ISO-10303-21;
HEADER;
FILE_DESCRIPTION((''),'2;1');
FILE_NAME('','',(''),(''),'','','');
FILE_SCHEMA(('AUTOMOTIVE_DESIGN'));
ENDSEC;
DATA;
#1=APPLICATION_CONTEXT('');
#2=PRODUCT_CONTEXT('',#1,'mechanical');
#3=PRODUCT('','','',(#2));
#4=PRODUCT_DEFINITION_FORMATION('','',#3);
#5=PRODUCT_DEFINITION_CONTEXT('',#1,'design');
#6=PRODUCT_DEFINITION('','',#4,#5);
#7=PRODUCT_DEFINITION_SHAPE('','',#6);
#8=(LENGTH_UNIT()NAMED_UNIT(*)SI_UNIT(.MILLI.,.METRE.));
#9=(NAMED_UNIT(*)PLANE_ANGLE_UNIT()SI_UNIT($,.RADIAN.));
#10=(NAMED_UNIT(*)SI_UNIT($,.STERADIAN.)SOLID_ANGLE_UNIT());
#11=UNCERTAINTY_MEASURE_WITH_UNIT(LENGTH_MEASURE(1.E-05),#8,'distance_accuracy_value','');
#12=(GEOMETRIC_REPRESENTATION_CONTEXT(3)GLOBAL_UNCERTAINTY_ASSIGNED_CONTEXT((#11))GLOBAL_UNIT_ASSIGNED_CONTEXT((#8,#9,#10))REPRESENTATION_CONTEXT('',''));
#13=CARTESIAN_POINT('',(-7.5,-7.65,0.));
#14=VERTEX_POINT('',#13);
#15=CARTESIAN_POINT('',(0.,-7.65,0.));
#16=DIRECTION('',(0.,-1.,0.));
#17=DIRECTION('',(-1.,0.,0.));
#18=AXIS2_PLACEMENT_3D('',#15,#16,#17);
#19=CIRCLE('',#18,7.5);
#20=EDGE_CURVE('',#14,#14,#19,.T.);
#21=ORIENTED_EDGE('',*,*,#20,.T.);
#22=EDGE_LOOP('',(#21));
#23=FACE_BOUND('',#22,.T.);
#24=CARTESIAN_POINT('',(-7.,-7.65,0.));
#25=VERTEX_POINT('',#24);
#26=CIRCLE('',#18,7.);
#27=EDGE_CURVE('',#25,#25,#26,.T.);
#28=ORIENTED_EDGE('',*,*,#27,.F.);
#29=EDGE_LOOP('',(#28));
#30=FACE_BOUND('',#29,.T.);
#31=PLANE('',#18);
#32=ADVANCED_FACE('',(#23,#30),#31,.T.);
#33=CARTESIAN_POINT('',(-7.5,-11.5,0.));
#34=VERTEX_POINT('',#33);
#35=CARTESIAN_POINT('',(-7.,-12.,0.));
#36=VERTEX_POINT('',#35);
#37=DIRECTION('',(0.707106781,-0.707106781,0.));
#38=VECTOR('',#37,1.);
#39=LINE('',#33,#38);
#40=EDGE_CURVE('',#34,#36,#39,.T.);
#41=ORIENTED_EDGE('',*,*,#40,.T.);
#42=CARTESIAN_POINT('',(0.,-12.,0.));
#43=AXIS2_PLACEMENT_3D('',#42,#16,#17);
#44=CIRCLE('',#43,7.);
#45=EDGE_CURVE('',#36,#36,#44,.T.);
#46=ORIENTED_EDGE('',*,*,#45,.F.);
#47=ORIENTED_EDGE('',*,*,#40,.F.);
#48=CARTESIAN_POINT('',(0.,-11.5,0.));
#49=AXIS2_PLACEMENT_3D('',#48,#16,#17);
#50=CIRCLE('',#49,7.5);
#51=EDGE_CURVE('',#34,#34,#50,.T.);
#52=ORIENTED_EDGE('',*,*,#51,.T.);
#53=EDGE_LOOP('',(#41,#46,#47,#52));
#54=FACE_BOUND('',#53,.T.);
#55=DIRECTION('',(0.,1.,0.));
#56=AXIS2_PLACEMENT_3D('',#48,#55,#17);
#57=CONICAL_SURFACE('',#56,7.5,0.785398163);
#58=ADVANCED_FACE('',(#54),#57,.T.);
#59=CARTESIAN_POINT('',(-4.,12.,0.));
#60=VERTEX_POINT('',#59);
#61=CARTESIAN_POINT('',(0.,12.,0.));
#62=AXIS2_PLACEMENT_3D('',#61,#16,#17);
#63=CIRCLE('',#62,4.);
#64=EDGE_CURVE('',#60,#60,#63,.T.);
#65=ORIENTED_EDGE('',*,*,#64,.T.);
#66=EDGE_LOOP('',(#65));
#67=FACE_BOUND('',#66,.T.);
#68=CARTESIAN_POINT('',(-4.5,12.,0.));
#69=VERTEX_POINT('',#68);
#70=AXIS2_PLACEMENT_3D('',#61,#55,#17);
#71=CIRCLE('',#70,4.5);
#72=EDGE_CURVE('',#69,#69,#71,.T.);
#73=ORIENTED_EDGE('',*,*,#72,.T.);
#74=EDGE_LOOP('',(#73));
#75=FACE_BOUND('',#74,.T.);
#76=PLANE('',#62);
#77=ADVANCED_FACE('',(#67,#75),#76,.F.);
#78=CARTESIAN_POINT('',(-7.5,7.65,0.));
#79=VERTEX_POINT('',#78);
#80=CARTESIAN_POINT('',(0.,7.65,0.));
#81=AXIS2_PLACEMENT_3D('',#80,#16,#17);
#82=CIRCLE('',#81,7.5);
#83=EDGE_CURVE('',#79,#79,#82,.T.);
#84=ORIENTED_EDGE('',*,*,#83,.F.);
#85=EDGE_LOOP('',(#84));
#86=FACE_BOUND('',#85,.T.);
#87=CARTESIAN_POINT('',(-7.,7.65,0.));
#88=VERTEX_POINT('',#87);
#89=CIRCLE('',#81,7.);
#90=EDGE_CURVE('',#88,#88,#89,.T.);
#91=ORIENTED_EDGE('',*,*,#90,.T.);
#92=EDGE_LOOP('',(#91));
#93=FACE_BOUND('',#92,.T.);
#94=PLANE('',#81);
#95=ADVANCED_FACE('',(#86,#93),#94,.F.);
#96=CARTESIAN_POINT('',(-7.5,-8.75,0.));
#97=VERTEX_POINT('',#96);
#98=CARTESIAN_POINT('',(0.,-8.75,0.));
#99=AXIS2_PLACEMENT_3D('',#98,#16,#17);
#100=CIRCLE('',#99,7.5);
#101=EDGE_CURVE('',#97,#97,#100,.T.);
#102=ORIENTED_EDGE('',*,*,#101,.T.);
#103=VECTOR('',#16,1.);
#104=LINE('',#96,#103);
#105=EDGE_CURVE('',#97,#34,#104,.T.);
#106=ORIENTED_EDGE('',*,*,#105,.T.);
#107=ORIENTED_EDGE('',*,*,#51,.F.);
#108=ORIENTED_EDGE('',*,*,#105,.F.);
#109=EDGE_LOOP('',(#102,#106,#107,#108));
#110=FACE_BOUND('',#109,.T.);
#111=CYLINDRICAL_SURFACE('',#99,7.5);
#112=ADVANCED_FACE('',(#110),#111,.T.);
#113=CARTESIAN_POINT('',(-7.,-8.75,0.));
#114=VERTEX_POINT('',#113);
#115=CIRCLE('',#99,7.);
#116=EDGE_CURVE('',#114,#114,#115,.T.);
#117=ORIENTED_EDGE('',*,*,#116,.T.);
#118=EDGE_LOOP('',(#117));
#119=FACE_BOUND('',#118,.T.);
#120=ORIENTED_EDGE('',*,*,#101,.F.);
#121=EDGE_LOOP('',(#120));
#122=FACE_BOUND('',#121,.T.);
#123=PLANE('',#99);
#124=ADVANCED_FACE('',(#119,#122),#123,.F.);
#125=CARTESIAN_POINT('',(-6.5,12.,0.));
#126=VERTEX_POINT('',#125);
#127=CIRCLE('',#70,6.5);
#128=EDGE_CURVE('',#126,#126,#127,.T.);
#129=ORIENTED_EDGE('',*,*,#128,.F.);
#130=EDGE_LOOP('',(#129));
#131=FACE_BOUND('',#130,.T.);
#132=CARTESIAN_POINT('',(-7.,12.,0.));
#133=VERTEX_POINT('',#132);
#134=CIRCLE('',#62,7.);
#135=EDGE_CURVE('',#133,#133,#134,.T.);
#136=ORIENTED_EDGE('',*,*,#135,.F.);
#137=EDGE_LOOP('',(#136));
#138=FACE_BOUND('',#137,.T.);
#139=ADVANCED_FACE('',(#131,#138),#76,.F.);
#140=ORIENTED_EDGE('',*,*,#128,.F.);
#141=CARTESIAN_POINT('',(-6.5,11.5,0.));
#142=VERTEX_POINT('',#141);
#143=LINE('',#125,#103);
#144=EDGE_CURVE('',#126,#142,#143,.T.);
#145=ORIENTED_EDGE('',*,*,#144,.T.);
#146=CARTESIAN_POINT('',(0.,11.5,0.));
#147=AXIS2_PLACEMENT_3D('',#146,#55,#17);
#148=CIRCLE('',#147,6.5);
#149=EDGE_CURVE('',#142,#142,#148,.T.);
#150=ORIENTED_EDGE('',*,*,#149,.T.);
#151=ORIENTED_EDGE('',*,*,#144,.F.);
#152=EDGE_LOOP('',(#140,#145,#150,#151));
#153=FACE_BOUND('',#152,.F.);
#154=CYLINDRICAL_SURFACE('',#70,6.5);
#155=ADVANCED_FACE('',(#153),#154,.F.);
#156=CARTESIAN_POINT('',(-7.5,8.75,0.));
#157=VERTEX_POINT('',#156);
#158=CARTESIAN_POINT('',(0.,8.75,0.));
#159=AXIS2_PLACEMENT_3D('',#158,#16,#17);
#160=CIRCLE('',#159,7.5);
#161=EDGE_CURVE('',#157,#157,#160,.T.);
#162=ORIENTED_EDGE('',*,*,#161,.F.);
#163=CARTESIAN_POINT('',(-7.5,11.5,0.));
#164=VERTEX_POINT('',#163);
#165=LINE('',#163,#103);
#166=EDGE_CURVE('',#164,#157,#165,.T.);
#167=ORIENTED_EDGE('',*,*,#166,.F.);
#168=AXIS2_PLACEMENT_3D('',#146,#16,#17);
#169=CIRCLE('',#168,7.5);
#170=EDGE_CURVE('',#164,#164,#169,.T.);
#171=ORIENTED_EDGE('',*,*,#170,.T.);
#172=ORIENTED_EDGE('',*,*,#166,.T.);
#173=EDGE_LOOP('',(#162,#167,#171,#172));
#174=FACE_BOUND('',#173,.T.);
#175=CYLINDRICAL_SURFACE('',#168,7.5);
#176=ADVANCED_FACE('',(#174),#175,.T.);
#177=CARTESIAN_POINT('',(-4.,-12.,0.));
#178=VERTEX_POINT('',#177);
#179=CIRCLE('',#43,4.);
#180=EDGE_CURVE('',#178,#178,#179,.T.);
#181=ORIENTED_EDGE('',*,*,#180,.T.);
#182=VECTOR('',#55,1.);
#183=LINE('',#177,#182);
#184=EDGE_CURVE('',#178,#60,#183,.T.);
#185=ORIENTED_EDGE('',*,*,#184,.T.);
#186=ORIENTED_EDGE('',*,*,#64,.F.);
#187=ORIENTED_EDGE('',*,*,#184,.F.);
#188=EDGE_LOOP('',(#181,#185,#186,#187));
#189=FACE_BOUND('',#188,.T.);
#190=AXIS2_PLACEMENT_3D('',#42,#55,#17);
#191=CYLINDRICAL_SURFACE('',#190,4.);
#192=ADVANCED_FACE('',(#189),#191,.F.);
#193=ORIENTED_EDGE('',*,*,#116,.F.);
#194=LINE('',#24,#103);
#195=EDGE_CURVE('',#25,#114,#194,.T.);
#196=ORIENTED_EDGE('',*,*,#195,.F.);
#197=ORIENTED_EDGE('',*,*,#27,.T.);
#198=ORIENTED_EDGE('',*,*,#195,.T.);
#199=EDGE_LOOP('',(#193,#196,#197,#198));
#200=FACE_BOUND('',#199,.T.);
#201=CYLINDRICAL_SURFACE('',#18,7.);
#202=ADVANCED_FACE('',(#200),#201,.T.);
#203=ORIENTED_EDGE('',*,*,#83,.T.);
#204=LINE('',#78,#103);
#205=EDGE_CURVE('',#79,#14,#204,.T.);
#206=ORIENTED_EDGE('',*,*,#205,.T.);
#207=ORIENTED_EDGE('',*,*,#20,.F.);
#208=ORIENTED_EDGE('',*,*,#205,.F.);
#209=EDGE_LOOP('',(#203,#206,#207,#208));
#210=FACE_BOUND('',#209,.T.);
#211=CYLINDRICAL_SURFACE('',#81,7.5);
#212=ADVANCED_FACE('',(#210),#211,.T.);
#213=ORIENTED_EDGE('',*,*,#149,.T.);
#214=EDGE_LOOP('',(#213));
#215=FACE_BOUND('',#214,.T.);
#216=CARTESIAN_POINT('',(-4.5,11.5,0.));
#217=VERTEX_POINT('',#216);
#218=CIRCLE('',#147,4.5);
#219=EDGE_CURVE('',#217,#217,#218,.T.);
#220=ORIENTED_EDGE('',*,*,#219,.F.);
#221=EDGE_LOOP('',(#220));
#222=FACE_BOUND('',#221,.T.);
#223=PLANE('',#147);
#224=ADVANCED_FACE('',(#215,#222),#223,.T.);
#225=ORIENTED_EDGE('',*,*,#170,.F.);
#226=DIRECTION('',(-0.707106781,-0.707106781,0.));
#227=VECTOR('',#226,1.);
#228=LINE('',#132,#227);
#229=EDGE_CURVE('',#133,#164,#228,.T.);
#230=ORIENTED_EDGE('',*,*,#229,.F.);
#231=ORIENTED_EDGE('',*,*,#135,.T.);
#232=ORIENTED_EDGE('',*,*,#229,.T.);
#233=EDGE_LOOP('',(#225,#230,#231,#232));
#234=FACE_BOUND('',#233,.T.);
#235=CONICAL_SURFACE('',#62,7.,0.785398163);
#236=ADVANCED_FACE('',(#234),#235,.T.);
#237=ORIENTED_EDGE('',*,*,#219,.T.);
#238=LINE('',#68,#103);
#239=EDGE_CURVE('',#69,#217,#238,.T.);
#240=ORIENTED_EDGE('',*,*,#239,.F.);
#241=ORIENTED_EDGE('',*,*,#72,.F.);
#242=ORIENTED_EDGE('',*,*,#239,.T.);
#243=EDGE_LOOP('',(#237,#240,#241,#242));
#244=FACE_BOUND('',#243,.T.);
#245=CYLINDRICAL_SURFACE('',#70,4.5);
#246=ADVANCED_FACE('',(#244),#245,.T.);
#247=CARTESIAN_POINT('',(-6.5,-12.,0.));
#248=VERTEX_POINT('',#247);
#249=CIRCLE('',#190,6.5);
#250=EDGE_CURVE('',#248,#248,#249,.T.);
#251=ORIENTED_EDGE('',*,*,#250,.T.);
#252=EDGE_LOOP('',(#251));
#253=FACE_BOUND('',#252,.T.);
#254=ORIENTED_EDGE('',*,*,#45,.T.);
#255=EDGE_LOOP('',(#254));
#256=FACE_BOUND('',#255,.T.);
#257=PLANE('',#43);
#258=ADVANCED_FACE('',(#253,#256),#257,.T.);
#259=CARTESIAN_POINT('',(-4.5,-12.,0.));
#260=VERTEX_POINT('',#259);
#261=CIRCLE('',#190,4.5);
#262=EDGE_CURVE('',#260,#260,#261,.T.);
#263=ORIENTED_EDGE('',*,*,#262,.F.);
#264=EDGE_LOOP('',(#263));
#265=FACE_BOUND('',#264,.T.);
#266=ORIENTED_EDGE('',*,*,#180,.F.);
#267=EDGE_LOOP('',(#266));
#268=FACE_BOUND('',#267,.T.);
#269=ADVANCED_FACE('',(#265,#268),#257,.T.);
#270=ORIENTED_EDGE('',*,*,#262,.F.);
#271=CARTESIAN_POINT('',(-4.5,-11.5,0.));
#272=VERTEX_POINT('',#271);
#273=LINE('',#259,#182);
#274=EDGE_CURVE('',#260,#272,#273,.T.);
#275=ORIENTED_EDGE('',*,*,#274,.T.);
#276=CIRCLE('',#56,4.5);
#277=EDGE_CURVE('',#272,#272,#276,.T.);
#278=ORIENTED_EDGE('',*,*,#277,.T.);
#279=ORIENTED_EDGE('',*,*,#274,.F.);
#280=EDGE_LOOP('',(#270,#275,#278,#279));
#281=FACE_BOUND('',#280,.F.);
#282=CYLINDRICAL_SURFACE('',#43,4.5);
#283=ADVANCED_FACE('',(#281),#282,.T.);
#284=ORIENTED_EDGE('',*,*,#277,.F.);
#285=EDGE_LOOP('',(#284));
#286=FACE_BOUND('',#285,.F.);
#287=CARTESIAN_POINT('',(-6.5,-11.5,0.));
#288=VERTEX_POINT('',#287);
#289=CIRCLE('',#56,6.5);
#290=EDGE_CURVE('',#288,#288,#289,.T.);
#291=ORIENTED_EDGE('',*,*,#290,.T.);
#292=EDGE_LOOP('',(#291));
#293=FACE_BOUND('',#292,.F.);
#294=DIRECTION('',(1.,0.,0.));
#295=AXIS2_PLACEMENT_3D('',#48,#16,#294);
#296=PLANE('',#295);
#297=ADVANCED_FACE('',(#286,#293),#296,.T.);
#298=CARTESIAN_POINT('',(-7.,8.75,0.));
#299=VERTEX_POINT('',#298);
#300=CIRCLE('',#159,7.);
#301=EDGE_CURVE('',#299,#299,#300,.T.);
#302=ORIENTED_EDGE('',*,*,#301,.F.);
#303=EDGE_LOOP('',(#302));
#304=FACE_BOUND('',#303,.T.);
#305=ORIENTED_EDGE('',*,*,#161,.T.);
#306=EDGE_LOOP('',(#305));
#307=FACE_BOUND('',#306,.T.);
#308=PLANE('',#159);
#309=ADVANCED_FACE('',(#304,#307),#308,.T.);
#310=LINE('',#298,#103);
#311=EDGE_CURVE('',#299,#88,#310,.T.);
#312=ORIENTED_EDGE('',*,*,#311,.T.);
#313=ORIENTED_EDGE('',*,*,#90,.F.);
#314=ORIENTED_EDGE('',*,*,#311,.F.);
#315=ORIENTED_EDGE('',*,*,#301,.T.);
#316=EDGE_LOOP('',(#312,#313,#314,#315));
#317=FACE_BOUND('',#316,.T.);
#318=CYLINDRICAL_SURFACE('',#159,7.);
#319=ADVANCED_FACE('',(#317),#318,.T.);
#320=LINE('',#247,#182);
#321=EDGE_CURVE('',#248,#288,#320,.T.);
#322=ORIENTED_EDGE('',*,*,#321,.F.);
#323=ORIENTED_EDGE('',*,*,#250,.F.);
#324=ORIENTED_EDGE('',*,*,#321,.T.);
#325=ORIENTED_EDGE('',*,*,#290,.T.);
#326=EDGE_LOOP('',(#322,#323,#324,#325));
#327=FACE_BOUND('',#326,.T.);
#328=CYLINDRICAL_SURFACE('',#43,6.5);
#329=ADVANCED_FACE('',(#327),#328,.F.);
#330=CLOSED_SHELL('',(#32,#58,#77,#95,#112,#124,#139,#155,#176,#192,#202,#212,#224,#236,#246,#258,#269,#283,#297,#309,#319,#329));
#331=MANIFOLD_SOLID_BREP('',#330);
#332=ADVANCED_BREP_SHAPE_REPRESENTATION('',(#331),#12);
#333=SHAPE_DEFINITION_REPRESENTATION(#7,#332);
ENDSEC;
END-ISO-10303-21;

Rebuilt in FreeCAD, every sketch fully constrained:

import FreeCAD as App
import Part
import Sketcher


def add_polygon(sketch, points):
    """Adds a closed chain of lines whose ends are joined by coincident constraints."""
    first, n = sketch.GeometryCount, len(points)
    for a, b in zip(points, points[1:] + points[:1]):
        sketch.addGeometry(Part.LineSegment(App.Vector(*a, 0), App.Vector(*b, 0)), False)
    for i in range(n):
        sketch.addConstraint(Sketcher.Constraint("Coincident", first + i, 2, first + (i + 1) % n, 1))

doc = App.newDocument("Part")
body = doc.addObject("PartDesign::Body", "Body")

sketch1 = doc.addObject("Sketcher::SketchObject", "Sketch")
body.addObject(sketch1)
sketch1.AttachmentSupport = (doc.XY_Plane, [""])
sketch1.MapMode = "FlatFace"
add_polygon(sketch1, [(4, 12), (4, -12), (7, -12), (7.5, -11.5), (7.5, -8.75), (7, -8.75), (7, -7.65), (7.5, -7.65), (7.5, 7.65), (7, 7.65), (7, 8.75), (7.5, 8.75), (7.5, 11.5), (7, 12)])
sketch1.addConstraint([
    Sketcher.Constraint("Vertical", 0),
    Sketcher.Constraint("Horizontal", 1),
    Sketcher.Constraint("Vertical", 3),
    Sketcher.Constraint("Horizontal", 4),
    Sketcher.Constraint("Vertical", 5),
    Sketcher.Constraint("Horizontal", 6),
    Sketcher.Constraint("Vertical", 7),
    Sketcher.Constraint("Horizontal", 8),
    Sketcher.Constraint("Vertical", 9),
    Sketcher.Constraint("Horizontal", 10),
    Sketcher.Constraint("Vertical", 11),
    Sketcher.Constraint("Horizontal", 13),
    Sketcher.Constraint("Symmetric", 5, 2, 8, 2, -1),
    Sketcher.Constraint("Symmetric", 3, 2, 10, 2, -1),
    Sketcher.Constraint("Symmetric", 1, 2, 12, 2, -1),
    Sketcher.Constraint("Perpendicular", 2, 12),
    Sketcher.Constraint("Vertical", 1, 2, 4, 2),
    Sketcher.Constraint("Vertical", 3, 2, 6, 2),
    Sketcher.Constraint("Equal", 3, 11),
    Sketcher.Constraint("DistanceX", 1, 1, 1, 2, 3.0),
    Sketcher.Constraint("DistanceY", 0, 2, 0, 1, 24.0),
    Sketcher.Constraint("DistanceX", 4, 2, 4, 1, 0.5),
    Sketcher.Constraint("DistanceY", 5, 1, 5, 2, 1.1),
    Sketcher.Constraint("DistanceY", 7, 1, 7, 2, 15.3),
    Sketcher.Constraint("DistanceX", -1, 1, 0, 2, 4.0),
])
revolution = doc.addObject("PartDesign::Revolution", "Revolution")
body.addObject(revolution)
revolution.Profile = sketch1
revolution.ReferenceAxis = (sketch1, ["V_Axis"])
revolution.Angle = 360

sketch2 = doc.addObject("Sketcher::SketchObject", "Sketch001")
body.addObject(sketch2)
sketch2.AttachmentSupport = (doc.XZ_Plane, [""])
sketch2.MapMode = "FlatFace"
sketch2.AttachmentOffset = App.Placement(App.Vector(0, 0, -12), App.Rotation())
sketch2.addGeometry([
    Part.Circle(App.Vector(0, 0, 0), App.Vector(0, 0, 1), 6.5),
    Part.Circle(App.Vector(0, 0, 0), App.Vector(0, 0, 1), 4.5),
], False)
sketch2.addConstraint([
    Sketcher.Constraint("Coincident", 0, 3, -1, 1),
    Sketcher.Constraint("Coincident", 1, 3, -1, 1),
    Sketcher.Constraint("Diameter", 0, 13.0),
    Sketcher.Constraint("Diameter", 1, 9.0),
])
pocket1 = doc.addObject("PartDesign::Pocket", "Pocket")
body.addObject(pocket1)
pocket1.Profile = sketch2
pocket1.Length = 0.5
pocket1.Reversed = True
doc.recompute()

mirrored = doc.addObject("PartDesign::Mirrored", "Mirrored")
body.addObject(mirrored)
mirrored.Originals = [pocket1]
mirrored.MirrorPlane = (doc.XZ_Plane, [""])
body.Tip = mirrored

doc.recompute()
